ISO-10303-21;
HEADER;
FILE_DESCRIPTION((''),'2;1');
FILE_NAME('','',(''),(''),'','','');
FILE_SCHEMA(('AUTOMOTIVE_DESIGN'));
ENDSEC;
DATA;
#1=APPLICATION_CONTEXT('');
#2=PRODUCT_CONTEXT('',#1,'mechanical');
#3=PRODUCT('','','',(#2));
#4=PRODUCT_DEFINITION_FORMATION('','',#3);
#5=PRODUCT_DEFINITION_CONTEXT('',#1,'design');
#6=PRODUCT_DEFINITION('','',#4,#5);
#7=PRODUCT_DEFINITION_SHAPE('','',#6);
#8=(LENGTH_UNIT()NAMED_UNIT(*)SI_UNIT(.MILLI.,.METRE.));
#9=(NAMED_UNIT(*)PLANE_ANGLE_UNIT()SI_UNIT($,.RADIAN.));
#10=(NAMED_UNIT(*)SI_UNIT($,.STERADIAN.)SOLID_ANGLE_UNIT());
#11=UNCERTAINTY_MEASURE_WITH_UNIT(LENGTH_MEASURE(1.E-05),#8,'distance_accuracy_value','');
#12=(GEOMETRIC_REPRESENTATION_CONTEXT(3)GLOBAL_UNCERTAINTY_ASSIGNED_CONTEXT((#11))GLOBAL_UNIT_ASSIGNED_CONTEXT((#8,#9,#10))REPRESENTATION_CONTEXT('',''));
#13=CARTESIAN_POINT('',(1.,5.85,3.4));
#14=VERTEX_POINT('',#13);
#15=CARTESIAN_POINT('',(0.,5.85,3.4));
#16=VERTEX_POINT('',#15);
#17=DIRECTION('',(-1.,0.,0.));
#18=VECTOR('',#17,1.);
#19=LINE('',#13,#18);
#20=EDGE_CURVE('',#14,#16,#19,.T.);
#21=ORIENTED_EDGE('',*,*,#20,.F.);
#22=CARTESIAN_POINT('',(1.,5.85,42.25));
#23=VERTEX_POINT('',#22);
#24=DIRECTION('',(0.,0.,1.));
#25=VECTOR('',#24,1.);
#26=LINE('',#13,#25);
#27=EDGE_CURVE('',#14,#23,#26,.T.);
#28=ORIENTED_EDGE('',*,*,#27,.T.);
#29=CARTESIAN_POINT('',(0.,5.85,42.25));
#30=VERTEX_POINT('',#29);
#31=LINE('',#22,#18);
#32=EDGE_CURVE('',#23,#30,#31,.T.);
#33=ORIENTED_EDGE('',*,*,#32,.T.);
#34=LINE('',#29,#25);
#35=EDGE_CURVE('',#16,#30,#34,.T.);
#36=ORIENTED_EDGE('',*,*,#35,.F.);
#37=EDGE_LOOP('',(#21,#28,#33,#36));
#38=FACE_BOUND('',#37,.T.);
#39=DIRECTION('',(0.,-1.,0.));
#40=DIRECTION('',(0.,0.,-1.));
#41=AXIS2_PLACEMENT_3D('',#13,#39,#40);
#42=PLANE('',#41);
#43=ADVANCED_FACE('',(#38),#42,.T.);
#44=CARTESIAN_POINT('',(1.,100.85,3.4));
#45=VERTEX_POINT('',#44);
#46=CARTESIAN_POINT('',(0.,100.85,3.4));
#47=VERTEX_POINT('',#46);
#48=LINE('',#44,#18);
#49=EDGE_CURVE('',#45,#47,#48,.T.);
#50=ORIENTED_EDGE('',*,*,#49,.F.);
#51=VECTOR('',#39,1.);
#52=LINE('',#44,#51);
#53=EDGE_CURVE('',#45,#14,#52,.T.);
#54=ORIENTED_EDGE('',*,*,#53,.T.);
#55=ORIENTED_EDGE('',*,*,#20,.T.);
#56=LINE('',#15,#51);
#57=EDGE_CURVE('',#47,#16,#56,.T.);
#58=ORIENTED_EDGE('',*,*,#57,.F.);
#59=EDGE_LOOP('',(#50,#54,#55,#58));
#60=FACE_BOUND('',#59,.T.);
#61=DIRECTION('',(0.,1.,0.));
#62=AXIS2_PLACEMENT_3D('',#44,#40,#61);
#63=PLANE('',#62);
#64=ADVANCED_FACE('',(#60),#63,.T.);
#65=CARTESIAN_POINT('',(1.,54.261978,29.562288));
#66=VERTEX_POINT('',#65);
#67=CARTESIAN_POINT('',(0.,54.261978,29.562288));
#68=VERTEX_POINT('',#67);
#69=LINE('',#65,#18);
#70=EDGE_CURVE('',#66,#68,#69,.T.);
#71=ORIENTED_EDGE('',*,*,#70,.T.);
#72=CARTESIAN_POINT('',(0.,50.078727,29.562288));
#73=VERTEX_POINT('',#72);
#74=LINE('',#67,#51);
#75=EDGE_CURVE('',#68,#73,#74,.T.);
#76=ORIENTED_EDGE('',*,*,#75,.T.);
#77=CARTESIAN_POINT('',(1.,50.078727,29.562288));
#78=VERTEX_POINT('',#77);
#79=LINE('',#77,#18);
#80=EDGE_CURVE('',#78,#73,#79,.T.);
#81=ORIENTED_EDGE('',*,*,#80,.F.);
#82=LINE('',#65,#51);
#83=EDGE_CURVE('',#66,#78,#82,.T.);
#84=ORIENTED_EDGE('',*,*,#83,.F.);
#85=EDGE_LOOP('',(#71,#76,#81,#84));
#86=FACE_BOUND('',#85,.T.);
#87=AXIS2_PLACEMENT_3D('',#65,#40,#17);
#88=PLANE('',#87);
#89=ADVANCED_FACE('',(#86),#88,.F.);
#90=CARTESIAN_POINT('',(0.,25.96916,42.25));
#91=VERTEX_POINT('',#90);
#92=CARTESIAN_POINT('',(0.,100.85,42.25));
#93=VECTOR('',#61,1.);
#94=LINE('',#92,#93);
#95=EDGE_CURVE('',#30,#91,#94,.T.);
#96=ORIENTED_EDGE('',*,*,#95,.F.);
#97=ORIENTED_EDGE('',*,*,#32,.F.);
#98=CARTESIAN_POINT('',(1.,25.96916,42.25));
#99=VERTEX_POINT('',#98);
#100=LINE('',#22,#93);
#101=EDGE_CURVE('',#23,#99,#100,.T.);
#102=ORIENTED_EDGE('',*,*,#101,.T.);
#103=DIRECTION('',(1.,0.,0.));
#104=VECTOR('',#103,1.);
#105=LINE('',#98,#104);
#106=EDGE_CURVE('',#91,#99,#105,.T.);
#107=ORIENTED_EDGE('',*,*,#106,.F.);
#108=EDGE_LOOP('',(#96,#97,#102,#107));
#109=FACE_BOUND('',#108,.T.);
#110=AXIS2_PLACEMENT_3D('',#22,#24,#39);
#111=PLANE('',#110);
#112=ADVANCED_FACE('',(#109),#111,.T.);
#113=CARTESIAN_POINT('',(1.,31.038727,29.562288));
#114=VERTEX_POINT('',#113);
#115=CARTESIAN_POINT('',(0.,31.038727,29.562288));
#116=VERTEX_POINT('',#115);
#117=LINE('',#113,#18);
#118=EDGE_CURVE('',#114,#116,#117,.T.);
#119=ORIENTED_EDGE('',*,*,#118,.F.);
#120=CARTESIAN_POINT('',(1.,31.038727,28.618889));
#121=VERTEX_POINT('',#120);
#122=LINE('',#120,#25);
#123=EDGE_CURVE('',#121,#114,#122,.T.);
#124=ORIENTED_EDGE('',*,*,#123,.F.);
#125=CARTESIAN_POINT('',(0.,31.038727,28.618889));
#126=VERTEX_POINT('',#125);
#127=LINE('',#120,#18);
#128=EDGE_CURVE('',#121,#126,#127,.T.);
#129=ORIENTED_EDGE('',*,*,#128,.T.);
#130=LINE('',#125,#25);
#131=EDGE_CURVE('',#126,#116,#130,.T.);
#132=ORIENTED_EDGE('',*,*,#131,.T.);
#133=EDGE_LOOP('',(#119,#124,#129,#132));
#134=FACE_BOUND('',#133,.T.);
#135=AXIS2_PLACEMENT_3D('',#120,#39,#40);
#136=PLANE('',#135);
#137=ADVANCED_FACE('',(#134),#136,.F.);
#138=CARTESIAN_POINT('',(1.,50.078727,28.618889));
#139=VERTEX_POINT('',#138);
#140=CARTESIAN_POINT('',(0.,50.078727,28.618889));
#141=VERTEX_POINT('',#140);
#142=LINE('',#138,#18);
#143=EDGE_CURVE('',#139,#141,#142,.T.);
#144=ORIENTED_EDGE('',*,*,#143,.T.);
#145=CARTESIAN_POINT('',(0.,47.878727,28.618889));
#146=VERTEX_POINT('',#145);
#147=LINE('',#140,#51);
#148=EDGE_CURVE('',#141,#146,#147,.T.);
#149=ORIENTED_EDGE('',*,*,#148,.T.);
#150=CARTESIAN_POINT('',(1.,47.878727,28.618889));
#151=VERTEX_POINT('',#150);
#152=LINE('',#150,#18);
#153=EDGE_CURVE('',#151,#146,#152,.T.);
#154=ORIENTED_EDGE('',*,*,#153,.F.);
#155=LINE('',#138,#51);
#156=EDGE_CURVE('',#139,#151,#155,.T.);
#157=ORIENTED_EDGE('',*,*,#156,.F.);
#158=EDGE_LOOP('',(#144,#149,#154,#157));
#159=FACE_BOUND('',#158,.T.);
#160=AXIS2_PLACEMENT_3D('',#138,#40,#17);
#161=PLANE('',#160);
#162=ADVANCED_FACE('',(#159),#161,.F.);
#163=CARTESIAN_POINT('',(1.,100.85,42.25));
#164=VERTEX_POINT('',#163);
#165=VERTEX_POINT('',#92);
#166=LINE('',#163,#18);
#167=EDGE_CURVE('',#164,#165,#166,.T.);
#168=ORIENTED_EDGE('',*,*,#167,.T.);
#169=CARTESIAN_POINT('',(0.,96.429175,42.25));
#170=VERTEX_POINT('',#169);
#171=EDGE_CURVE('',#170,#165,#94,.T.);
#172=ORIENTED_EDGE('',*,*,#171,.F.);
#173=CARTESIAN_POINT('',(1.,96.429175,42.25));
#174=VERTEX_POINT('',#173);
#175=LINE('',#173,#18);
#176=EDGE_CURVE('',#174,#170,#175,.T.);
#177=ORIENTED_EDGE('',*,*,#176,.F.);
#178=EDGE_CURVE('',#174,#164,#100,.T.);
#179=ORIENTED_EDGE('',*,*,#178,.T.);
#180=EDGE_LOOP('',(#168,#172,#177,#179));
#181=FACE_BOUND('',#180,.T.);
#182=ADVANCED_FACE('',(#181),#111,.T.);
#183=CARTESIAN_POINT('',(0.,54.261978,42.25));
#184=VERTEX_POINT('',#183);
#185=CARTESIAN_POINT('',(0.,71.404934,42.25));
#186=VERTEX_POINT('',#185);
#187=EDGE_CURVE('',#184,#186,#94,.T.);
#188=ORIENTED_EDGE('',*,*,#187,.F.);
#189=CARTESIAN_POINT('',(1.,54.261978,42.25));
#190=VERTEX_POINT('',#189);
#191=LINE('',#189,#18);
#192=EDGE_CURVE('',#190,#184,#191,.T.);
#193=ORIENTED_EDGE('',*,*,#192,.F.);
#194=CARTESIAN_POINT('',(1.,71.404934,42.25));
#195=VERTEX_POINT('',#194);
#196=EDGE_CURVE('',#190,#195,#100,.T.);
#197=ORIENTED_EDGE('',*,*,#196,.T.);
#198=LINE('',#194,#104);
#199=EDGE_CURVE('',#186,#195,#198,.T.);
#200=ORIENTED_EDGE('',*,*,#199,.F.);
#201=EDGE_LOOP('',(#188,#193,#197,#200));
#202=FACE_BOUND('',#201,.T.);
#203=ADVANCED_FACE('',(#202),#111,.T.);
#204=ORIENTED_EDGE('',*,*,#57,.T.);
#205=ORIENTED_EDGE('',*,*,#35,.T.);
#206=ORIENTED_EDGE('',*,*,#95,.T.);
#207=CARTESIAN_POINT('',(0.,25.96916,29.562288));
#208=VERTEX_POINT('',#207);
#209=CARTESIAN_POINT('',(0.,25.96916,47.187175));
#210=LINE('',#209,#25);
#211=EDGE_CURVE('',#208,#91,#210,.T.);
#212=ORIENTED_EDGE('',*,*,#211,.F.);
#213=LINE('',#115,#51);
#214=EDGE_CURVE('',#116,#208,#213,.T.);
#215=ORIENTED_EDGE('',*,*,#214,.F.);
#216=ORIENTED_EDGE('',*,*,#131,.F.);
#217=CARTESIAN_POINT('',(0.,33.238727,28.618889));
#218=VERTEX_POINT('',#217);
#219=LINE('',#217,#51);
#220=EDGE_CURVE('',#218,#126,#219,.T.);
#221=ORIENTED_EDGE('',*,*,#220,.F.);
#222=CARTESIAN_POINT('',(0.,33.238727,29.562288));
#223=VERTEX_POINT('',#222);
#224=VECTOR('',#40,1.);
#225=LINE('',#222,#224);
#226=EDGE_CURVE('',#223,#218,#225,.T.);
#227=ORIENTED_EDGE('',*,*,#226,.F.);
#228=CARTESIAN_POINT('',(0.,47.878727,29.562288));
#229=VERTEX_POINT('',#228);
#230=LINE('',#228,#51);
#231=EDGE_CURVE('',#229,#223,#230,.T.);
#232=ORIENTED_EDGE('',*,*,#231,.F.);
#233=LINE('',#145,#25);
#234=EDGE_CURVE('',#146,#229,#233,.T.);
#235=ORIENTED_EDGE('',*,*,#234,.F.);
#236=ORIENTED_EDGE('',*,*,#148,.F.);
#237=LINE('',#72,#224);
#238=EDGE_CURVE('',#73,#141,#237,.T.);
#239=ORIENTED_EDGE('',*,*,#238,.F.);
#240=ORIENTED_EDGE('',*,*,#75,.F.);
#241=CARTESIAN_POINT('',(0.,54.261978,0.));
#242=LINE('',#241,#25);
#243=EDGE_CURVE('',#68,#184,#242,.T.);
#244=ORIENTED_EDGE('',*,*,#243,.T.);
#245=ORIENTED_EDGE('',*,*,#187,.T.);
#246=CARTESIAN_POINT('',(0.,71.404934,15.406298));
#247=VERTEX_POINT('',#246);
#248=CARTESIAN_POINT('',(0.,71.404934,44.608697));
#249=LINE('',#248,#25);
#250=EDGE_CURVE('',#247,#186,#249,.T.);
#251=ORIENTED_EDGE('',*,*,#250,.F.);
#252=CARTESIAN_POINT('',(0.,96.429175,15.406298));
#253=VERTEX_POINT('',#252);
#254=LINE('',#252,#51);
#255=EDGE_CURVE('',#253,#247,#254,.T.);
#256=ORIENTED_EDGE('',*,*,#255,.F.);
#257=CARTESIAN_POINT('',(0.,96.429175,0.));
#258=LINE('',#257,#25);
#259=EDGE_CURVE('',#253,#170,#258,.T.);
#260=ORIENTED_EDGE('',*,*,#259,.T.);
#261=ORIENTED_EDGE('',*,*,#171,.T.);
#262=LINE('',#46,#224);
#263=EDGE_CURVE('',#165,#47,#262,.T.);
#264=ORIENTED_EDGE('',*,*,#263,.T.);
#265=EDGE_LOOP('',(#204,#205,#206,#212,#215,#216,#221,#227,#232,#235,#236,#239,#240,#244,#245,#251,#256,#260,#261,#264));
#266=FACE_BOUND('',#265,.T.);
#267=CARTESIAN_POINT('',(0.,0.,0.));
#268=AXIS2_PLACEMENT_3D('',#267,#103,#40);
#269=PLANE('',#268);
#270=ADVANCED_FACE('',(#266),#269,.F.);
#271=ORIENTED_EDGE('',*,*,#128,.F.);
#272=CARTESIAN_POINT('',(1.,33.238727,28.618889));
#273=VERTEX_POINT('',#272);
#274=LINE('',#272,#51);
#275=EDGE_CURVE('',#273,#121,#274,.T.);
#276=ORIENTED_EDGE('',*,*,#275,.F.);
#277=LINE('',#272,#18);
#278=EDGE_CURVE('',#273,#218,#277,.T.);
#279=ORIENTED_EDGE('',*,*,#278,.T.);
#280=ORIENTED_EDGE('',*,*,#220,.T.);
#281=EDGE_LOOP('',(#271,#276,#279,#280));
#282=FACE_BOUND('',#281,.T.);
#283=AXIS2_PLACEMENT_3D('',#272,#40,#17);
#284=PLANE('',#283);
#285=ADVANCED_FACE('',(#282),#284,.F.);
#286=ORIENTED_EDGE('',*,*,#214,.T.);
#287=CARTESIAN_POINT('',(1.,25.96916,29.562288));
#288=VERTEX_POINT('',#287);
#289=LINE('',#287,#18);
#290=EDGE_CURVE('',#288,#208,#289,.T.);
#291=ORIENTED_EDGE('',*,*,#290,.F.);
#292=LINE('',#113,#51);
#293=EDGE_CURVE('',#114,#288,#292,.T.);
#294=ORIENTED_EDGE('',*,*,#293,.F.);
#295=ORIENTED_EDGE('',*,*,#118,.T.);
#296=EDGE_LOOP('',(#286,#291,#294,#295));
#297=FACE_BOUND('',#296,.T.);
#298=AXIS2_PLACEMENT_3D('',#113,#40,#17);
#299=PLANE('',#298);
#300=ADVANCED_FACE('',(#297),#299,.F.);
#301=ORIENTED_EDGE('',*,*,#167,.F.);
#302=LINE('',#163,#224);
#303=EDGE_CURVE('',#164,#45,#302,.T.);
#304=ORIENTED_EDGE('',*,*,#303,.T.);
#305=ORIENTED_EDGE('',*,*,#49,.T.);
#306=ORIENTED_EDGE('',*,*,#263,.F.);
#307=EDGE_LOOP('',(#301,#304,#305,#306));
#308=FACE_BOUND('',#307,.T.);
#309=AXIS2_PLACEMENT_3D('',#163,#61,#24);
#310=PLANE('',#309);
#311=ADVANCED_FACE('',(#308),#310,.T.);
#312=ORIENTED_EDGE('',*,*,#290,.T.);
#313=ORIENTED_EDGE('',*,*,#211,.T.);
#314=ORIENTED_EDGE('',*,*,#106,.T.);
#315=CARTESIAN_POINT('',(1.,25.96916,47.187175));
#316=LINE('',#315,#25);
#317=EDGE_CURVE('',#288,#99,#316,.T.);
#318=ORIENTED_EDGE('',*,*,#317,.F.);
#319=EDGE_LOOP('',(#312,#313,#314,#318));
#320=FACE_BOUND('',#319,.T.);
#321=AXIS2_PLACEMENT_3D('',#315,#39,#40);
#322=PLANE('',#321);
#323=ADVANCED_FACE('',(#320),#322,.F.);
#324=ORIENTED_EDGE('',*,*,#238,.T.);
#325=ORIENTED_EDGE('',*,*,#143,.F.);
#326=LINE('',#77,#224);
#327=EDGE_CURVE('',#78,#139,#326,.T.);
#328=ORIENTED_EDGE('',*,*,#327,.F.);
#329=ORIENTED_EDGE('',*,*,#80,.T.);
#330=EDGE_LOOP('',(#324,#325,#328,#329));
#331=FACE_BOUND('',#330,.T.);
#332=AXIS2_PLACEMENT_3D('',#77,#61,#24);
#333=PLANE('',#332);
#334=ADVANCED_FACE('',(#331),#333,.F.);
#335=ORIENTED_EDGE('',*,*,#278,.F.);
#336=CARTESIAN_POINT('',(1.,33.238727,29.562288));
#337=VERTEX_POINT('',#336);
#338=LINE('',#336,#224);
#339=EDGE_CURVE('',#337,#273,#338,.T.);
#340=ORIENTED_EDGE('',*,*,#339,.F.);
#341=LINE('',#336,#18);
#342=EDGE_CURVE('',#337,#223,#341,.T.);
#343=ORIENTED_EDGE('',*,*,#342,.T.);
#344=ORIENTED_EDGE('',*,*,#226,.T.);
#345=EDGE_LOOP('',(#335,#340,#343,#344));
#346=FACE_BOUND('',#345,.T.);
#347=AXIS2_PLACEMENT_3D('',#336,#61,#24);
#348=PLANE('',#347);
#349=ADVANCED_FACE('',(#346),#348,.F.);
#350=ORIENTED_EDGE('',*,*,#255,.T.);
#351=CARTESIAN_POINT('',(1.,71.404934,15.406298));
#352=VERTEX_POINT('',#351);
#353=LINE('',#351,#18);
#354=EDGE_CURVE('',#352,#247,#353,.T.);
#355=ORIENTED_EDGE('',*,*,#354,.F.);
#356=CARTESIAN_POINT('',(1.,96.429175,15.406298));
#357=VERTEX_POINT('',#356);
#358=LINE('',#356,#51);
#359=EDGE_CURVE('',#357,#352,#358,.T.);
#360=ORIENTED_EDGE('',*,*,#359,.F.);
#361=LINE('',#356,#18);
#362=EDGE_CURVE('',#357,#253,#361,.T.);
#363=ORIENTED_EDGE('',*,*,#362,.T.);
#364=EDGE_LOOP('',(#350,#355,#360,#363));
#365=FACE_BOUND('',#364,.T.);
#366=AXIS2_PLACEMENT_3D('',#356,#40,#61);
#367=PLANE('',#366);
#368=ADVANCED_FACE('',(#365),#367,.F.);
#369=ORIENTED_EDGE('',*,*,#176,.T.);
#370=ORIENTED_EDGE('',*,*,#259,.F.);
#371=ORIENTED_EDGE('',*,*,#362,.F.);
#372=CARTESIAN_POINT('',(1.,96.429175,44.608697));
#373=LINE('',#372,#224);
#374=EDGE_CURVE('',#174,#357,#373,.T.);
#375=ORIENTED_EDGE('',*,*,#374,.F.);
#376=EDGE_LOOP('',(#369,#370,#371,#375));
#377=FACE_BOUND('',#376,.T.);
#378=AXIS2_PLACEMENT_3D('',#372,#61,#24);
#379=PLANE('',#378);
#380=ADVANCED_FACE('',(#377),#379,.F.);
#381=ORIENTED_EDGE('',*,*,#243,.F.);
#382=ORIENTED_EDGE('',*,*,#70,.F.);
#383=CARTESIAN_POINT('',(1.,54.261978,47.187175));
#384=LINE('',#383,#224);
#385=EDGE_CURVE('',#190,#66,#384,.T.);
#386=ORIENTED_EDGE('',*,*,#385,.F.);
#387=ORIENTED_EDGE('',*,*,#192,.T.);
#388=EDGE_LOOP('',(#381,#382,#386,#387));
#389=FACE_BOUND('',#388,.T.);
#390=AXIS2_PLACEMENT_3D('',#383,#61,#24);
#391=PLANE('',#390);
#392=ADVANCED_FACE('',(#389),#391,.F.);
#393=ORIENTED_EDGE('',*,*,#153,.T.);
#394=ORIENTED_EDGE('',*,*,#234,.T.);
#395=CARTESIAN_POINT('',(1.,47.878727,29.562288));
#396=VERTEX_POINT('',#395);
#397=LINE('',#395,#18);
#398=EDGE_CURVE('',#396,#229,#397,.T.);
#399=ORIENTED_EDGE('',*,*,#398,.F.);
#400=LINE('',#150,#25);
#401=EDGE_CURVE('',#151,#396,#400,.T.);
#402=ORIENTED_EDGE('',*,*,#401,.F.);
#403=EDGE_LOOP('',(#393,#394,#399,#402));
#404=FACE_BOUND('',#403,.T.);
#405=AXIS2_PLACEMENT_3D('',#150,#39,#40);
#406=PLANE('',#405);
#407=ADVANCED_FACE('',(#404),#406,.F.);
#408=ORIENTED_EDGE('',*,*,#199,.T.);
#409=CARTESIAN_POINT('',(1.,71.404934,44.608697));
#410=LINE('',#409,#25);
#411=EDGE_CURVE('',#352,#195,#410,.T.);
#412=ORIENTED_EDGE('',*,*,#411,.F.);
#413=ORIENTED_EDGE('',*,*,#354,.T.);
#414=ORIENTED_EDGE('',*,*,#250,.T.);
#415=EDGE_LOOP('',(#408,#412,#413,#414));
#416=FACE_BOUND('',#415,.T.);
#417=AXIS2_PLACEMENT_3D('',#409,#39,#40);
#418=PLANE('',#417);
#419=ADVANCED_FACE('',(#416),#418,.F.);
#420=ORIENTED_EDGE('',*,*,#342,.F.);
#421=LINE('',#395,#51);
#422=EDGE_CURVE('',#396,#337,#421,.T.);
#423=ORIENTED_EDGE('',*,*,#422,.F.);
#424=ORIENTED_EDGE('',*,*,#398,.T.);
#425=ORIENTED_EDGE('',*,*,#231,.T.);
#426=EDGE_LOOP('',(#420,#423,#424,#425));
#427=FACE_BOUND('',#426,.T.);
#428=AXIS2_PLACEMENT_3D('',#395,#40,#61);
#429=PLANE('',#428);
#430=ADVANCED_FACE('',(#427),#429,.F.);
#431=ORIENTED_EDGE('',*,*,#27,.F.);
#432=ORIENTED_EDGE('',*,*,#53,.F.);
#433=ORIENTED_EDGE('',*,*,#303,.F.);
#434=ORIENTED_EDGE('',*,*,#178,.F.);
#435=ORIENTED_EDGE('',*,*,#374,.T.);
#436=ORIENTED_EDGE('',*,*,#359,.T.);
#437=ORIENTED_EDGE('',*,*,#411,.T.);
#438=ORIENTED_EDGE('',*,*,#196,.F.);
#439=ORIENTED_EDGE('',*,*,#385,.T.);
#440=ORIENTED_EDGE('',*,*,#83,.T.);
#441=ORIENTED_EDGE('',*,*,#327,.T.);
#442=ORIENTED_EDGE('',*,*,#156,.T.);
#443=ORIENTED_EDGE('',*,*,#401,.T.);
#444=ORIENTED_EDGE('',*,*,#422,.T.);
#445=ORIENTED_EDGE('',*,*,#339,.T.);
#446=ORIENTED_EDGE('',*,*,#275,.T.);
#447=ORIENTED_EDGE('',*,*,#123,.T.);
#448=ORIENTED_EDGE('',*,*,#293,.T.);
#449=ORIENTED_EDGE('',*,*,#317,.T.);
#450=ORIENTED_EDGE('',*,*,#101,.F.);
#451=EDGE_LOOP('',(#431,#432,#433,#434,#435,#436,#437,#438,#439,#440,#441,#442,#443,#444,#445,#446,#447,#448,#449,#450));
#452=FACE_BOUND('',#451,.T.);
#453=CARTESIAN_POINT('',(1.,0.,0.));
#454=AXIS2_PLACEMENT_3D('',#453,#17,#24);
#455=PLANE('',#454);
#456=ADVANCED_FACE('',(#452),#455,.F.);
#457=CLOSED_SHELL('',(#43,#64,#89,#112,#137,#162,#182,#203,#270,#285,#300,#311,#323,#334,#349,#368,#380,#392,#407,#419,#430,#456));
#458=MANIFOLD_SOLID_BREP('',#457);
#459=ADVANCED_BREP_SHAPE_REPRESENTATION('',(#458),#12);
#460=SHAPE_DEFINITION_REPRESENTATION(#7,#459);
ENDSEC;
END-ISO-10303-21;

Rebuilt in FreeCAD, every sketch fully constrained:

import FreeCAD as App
import Part
import Sketcher


def add_polygon(sketch, points):
    """Adds a closed chain of lines whose ends are joined by coincident constraints."""
    first, n = sketch.GeometryCount, len(points)
    for a, b in zip(points, points[1:] + points[:1]):
        sketch.addGeometry(Part.LineSegment(App.Vector(*a, 0), App.Vector(*b, 0)), False)
    for i in range(n):
        sketch.addConstraint(Sketcher.Constraint("Coincident", first + i, 2, first + (i + 1) % n, 1))

doc = App.newDocument("Part")
body = doc.addObject("PartDesign::Body", "Body")

sketch1 = body.newObject("Sketcher::SketchObject", "Sketch")
sketch1.AttachmentSupport = (doc.getObject("YZ_Plane"), [""])
sketch1.MapMode = "FlatFace"
sketch1.AttachmentOffset = App.Placement(App.Vector(0, 0, 0.5), App.Rotation())
add_polygon(sketch1, [(101, 42), (101, 3), (6, 3), (6, 42)])
sketch1.addConstraint([
    Sketcher.Constraint("Vertical", 0),
    Sketcher.Constraint("Horizontal", 1),
    Sketcher.Constraint("Vertical", 2),
    Sketcher.Constraint("Horizontal", 3),
    Sketcher.Constraint("DistanceX", 1, 2, 1, 1, 95.0),
    Sketcher.Constraint("DistanceY", 0, 2, 0, 1, 38.85),
    Sketcher.Constraint("DistanceY", -1, 1, 0, 2, 3.4),
    Sketcher.Constraint("DistanceX", -1, 1, 0, 2, 100.85),
])
pad1 = body.newObject("PartDesign::Pad", "Pad")
pad1.Profile = sketch1
pad1.Length = 0.5

sketch2 = body.newObject("Sketcher::SketchObject", "Sketch001")
sketch2.AttachmentSupport = (doc.getObject("YZ_Plane"), [""])
sketch2.MapMode = "FlatFace"
sketch2.AttachmentOffset = App.Placement(App.Vector(0, 0, 0.5), App.Rotation())
add_polygon(sketch2, [(101, 3), (6, 3), (6, 42), (101, 42)])
sketch2.addConstraint([
    Sketcher.Constraint("Horizontal", 0),
    Sketcher.Constraint("Vertical", 1),
    Sketcher.Constraint("Horizontal", 2),
    Sketcher.Constraint("Vertical", 3),
    Sketcher.Constraint("DistanceX", 0, 2, 0, 1, 95.0),
    Sketcher.Constraint("DistanceY", 1, 1, 1, 2, 38.85),
    Sketcher.Constraint("DistanceY", -1, 1, 0, 2, 3.4),
    Sketcher.Constraint("DistanceX", -1, 1, 0, 2, 5.85),
])
pad2 = body.newObject("PartDesign::Pad", "Pad001")
pad2.Profile = sketch2
pad2.Length = 0.5
pad2.Reversed = True

sketch3 = body.newObject("Sketcher::SketchObject", "Sketch002")
sketch3.AttachmentSupport = (doc.getObject("YZ_Plane"), [""])
sketch3.MapMode = "FlatFace"
add_polygon(sketch3, [(54.3, 47.2), (54.3, 29.6), (50.1, 29.6), (50.1, 28.6), (47.9, 28.6), (47.9, 29.6), (33.2, 29.6), (33.2, 28.6), (31, 28.6), (31, 29.6), (26, 29.6), (26, 47.2)])
add_polygon(sketch3, [(96.4, 15.4), (71.4, 15.4), (71.4, 44.6), (96.4, 44.6)])
sketch3.addConstraint([
    Sketcher.Constraint("Vertical", 0),
    Sketcher.Constraint("Horizontal", 1),
    Sketcher.Constraint("Vertical", 2),
    Sketcher.Constraint("Horizontal", 3),
    Sketcher.Constraint("Vertical", 4),
    Sketcher.Constraint("Horizontal", 5),
    Sketcher.Constraint("Vertical", 6),
    Sketcher.Constraint("Horizontal", 7),
    Sketcher.Constraint("Vertical", 8),
    Sketcher.Constraint("Horizontal", 9),
    Sketcher.Constraint("Vertical", 10),
    Sketcher.Constraint("Horizontal", 11),
    Sketcher.Constraint("Horizontal", 12),
    Sketcher.Constraint("Vertical", 13),
    Sketcher.Constraint("Horizontal", 14),
    Sketcher.Constraint("Vertical", 15),
    Sketcher.Constraint("Horizontal", 1, 2, 4, 2),
    Sketcher.Constraint("Horizontal", 3, 2, 6, 2),
    Sketcher.Constraint("Horizontal", 5, 2, 8, 2),
    Sketcher.Constraint("Equal", 3, 7),
    Sketcher.Constraint("DistanceX", 3, 2, 3, 1, 2.2),
    Sketcher.Constraint("DistanceX", 5, 2, 5, 1, 14.64),
    Sketcher.Constraint("DistanceY", 2, 2, 2, 1, 0.943399),
    Sketcher.Constraint("DistanceY", 13, 1, 13, 2, 29.202399),
    Sketcher.Constraint("DistanceX", 1, 2, 1, 1, 4.183252),
    Sketcher.Constraint("DistanceX", 11, 1, 11, 2, 28.292818),
    Sketcher.Constraint("DistanceX", 12, 2, 12, 1, 25.024241),
    Sketcher.Constraint("DistanceY", 0, 2, 0, 1, 17.624887),
    Sketcher.Constraint("DistanceX", -1, 1, 0, 2, 54.261978),
    Sketcher.Constraint("DistanceY", -1, 1, 0, 2, 29.562288),
    Sketcher.Constraint("DistanceY", 12, 2, 0, 2, 14.15599),
    Sketcher.Constraint("DistanceX", 1, 2, 14, 2, 46.350448),
])
pocket1 = body.newObject("PartDesign::Pocket", "Pocket")
pocket1.Profile = sketch3
pocket1.Type = "ThroughAll"
pocket1.Reversed = True

doc.recompute()
